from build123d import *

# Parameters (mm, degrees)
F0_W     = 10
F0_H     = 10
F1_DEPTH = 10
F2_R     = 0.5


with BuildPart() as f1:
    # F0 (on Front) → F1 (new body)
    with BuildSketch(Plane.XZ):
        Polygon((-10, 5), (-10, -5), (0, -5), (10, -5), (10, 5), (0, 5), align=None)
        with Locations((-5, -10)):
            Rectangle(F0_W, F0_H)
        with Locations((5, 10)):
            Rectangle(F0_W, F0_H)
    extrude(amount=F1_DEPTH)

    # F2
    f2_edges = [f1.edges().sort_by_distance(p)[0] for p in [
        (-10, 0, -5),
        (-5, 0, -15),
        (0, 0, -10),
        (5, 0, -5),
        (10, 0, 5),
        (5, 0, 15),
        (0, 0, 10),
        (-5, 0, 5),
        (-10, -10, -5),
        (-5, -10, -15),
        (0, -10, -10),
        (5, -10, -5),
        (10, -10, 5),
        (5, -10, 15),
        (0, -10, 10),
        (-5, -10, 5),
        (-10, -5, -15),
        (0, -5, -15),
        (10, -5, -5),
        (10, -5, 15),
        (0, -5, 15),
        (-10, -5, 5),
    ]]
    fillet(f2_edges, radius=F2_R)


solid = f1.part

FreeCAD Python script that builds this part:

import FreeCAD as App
import Part
import Sketcher


def edges_at(feature, points):
    """Names of the edges that pass closest to the given points."""
    edges = feature.Shape.Edges
    near = lambda p: min(range(len(edges)), key=lambda i: edges[i].distToShape(Part.Vertex(*p))[0])
    return sorted({f"Edge{near(p) + 1}" for p in points})


def add_polygon(sketch, points):
    """Adds a closed chain of lines whose ends are joined by coincident constraints."""
    first, n = sketch.GeometryCount, len(points)
    for a, b in zip(points, points[1:] + points[:1]):
        sketch.addGeometry(Part.LineSegment(App.Vector(*a, 0), App.Vector(*b, 0)), False)
    for i in range(n):
        sketch.addConstraint(Sketcher.Constraint("Coincident", first + i, 2, first + (i + 1) % n, 1))

doc = App.newDocument("Part")
body = doc.addObject("PartDesign::Body", "Body")

# Sketch on XZ plane
sketch1 = doc.addObject("Sketcher::SketchObject", "Sketch")
body.addObject(sketch1)
sketch1.AttachmentSupport = (doc.XZ_Plane, [""])
sketch1.MapMode = "FlatFace"
add_polygon(sketch1, [(-10, 5), (-10, -15), (0, -15), (0, -5), (10, -5), (10, 15), (0, 15), (0, 5)])  # lines 0-7
sketch1.addConstraint(Sketcher.Constraint("Vertical", 0))
sketch1.addConstraint(Sketcher.Constraint("Horizontal", 1))
sketch1.addConstraint(Sketcher.Constraint("Vertical", 2))
sketch1.addConstraint(Sketcher.Constraint("Horizontal", 3))
sketch1.addConstraint(Sketcher.Constraint("Vertical", 4))
sketch1.addConstraint(Sketcher.Constraint("Horizontal", 5))
sketch1.addConstraint(Sketcher.Constraint("Vertical", 6))
sketch1.addConstraint(Sketcher.Constraint("Horizontal", 7))
sketch1.addConstraint(Sketcher.Constraint("Symmetric", 0, 2, 4, 2, -1, 1))
sketch1.addConstraint(Sketcher.Constraint("Symmetric", 2, 2, 6, 2, -1, 1))
sketch1.addConstraint(Sketcher.Constraint("PointOnObject", 1, 2, -2))
sketch1.addConstraint(Sketcher.Constraint("Equal", 7, 2))
sketch1.addConstraint(Sketcher.Constraint("DistanceX", 1, 1, 1, 2, 10.0))
sketch1.addConstraint(Sketcher.Constraint("DistanceY", 0, 2, 0, 1, 20.0))
pad1 = doc.addObject("PartDesign::Pad", "Pad")
body.addObject(pad1)
pad1.Profile = sketch1
pad1.Length = 10
doc.recompute()

fillet = doc.addObject("PartDesign::Fillet", "Fillet")
body.addObject(fillet)
fillet.Base = (pad1, edges_at(pad1, [
    (-10, 0, -5),
    (-5, 0, -15),
    (0, 0, -10),
    (5, 0, -5),
    (10, 0, 5),
    (5, 0, 15),
    (0, 0, 10),
    (-5, 0, 5),
    (-10, -10, -5),
    (-5, -10, -15),
    (0, -10, -10),
    (5, -10, -5),
    (10, -10, 5),
    (5, -10, 15),
    (0, -10, 10),
    (-5, -10, 5),
    (-10, -5, -15),
    (0, -5, -15),
    (10, -5, -5),
    (10, -5, 15),
    (0, -5, 15),
    (-10, -5, 5),
]))
fillet.Radius = 0.5

doc.recompute()
